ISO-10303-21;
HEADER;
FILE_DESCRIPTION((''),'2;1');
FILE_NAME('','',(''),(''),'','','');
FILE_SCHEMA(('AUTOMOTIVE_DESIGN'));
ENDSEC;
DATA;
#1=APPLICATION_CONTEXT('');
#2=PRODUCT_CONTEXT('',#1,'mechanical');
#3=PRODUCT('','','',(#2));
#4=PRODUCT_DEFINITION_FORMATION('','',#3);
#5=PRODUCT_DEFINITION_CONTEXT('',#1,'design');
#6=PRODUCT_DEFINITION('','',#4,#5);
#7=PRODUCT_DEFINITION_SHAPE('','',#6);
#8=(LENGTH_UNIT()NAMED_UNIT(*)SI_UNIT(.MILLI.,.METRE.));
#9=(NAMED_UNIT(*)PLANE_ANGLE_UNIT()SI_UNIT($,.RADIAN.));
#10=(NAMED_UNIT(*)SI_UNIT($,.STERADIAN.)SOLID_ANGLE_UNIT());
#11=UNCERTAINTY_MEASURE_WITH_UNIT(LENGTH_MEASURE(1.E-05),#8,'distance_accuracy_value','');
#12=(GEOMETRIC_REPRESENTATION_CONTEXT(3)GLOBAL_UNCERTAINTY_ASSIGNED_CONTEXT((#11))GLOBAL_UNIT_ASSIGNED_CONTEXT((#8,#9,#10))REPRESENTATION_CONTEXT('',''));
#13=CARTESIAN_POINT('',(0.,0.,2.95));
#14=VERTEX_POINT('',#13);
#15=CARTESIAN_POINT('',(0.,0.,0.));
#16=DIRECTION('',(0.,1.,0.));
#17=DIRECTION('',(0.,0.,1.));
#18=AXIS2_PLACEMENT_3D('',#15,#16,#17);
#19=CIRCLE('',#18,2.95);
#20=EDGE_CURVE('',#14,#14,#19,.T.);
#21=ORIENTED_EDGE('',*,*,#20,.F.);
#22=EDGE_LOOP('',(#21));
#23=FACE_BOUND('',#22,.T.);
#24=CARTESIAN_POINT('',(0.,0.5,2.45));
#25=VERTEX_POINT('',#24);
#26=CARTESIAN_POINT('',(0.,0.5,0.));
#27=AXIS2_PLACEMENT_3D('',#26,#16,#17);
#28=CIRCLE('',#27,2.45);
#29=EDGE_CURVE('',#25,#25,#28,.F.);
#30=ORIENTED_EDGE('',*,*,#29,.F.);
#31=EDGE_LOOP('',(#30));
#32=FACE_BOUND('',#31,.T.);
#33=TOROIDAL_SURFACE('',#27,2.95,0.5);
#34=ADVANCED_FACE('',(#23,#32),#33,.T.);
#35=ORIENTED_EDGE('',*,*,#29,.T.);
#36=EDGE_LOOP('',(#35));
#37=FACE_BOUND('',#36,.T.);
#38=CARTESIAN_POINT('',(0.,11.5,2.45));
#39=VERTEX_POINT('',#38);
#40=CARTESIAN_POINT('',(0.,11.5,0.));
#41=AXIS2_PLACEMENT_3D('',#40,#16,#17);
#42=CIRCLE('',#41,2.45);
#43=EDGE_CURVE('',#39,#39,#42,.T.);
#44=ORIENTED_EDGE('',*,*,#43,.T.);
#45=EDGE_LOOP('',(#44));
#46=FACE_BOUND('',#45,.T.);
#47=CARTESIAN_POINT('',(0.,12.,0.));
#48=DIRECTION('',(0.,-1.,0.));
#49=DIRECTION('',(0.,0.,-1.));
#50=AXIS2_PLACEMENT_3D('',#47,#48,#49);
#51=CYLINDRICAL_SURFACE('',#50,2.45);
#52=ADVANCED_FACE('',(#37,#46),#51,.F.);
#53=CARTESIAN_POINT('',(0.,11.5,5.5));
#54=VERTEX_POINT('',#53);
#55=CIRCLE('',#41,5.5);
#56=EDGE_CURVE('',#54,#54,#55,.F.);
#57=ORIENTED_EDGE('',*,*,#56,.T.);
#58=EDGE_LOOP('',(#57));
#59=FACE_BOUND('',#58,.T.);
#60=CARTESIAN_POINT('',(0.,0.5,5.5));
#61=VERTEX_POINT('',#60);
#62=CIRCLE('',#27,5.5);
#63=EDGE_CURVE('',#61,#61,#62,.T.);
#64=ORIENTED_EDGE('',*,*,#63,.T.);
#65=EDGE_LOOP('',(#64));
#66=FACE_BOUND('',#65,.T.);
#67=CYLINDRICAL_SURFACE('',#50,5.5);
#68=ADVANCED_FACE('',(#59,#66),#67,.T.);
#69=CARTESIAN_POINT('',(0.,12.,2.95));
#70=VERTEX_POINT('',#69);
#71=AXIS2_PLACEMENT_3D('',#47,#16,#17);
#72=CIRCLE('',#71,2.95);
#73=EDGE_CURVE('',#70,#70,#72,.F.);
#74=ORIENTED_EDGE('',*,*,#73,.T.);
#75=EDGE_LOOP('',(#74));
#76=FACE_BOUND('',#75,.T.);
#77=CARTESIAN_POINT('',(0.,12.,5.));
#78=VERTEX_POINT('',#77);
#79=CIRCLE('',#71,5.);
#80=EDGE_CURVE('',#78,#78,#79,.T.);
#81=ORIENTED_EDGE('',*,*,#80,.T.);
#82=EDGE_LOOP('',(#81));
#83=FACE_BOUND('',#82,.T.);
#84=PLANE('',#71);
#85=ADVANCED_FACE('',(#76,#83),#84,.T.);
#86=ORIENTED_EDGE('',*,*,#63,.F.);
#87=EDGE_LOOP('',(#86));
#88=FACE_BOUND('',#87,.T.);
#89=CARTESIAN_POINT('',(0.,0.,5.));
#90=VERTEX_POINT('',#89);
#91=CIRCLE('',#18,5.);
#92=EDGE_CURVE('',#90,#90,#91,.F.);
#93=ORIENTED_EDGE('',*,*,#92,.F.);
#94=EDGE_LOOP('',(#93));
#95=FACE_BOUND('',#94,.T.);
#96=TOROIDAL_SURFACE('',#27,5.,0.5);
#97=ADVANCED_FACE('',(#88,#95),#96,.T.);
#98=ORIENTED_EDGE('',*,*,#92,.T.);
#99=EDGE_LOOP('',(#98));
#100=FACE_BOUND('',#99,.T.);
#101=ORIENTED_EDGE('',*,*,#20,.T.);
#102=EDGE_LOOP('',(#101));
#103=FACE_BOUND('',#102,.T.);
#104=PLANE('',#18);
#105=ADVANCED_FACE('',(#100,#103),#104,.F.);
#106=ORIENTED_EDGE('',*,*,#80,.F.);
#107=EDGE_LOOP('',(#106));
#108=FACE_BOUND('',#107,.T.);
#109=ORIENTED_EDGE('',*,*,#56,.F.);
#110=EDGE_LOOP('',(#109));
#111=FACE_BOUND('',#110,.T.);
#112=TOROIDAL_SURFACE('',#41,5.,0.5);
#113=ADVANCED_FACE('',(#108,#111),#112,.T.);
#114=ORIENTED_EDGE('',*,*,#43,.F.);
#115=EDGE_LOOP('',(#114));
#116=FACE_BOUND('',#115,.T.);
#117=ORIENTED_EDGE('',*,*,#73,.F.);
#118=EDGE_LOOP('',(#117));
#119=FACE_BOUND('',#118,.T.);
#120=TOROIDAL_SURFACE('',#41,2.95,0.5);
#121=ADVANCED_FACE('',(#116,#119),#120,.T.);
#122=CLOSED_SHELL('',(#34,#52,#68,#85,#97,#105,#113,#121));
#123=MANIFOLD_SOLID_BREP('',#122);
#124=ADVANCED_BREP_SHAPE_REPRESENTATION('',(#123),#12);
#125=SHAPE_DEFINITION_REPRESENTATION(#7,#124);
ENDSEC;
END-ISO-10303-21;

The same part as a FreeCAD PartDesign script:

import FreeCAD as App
import Part
import Sketcher
from FreeCAD import Vector
Q = App.Units.Quantity


def edges_at(feature, points):
    """Names of the edges that pass closest to the given points."""
    edges = feature.Shape.Edges
    near = lambda p: min(range(len(edges)), key=lambda i: edges[i].distToShape(Part.Vertex(*p))[0])
    return sorted({f"Edge{near(p) + 1}" for p in points})

doc = App.newDocument("Part")
params = doc.addObject("Spreadsheet::Sheet", "Params")
for row, (alias, value) in enumerate([
    ("sketch1_diameter", "11 mm"),
    ("sketch1_diameter2", "4.9 mm"),
    ("pad1_length", "12 mm"),
    ("fillet_radius", "0.5 mm"),
], start=1):
    params.set(f"A{row}", alias)
    params.set(f"B{row}", "=" + value)
    params.setAlias(f"B{row}", alias)

body = doc.addObject("PartDesign::Body", "Body")

# Sketch on XZ plane
sketch1 = doc.addObject("Sketcher::SketchObject", "Sketch")
body.addObject(sketch1)
sketch1.AttachmentSupport = (doc.XZ_Plane, [""])
sketch1.MapMode = "FlatFace"
sketch1.addGeometry(Part.Circle(Vector(0, 0, 0), Vector(0, 0, 1), 5.5), False)
sketch1.addGeometry(Part.Circle(Vector(0, 0, 0), Vector(0, 0, 1), 2.45), False)
sketch1.addConstraint(Sketcher.Constraint("Coincident", 0, 3, -1, 1))
sketch1.addConstraint(Sketcher.Constraint("Coincident", 1, 3, -1, 1))
sketch1.addConstraint(Sketcher.Constraint("Diameter", 0, Q("11 mm")))
sketch1.addConstraint(Sketcher.Constraint("Diameter", 1, Q("4.9 mm")))
sketch1.setExpression("Constraints[2]", "Params.sketch1_diameter")
sketch1.setExpression("Constraints[3]", "Params.sketch1_diameter2")
pad1 = doc.addObject("PartDesign::Pad", "Pad")
body.addObject(pad1)
pad1.Profile = sketch1
pad1.setExpression("Length", "Params.pad1_length")
pad1.Reversed = True
doc.recompute()

fillet = doc.addObject("PartDesign::Fillet", "Fillet")
body.addObject(fillet)
fillet.Base = (pad1, edges_at(pad1, [
    (0, 0, -5.5),
    (0, 12, -5.5),
    (0, 0, -2.45),
    (0, 12, -2.45),
]))
fillet.setExpression("Radius", "Params.fillet_radius")

doc.recompute()
